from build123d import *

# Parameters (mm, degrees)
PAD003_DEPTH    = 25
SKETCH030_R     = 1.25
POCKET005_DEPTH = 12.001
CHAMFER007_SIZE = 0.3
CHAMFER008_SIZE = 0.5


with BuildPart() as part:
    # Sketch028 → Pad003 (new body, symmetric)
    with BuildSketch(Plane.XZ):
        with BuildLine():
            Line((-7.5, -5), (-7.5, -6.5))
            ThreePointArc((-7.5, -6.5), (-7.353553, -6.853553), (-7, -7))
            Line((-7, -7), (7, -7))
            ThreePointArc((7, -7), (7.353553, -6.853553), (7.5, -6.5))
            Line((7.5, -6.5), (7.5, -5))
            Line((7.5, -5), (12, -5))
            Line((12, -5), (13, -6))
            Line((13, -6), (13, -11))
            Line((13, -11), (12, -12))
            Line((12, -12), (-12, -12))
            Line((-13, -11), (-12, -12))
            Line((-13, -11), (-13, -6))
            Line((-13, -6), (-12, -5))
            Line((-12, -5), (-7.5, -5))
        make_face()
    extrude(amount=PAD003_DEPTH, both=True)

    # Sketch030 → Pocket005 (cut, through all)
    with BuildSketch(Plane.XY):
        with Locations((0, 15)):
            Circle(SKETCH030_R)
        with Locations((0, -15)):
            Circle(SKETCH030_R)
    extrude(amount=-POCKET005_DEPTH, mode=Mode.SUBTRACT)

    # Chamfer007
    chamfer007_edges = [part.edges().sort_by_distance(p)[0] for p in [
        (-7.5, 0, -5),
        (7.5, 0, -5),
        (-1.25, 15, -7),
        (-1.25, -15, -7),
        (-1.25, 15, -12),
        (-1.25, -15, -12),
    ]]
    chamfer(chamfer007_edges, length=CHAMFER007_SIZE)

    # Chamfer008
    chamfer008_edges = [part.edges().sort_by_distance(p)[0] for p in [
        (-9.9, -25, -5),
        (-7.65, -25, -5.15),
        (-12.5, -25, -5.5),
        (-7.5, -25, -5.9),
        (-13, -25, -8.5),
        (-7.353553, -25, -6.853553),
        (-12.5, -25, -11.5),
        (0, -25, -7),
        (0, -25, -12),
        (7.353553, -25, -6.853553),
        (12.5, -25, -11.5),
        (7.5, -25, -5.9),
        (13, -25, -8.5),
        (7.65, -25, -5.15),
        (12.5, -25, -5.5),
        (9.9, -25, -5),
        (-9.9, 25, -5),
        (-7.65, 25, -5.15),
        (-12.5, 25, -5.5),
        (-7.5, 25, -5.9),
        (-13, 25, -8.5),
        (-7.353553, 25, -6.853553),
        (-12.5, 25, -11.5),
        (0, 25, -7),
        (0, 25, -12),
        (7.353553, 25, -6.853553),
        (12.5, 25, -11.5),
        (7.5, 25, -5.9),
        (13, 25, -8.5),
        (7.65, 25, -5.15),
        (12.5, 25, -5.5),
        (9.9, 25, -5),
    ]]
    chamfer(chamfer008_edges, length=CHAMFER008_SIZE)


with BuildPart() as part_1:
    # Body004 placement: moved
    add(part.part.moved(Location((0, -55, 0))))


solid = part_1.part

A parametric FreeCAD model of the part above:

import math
import FreeCAD as App
import Part
import Sketcher


def edges_at(feature, points):
    """Names of the edges that pass closest to the given points."""
    edges = feature.Shape.Edges
    near = lambda p: min(range(len(edges)), key=lambda i: edges[i].distToShape(Part.Vertex(*p))[0])
    return sorted({f"Edge{near(p) + 1}" for p in points})

doc = App.newDocument("Part")
params = doc.addObject("Spreadsheet::Sheet", "Params")
for row, (alias, value) in enumerate([
    ("sketch1_radius", "0.500001 mm"),
    ("sketch1_width", "24 mm"),
    ("sketch1_width2", "14 mm"),
    ("sketch1_height", "5 mm"),
    ("sketch1_width3", "4.5 mm"),
    ("pad1_length", "50 mm"),
    ("sketch2_diameter", "2.5 mm"),
    ("chamfer_size", "0.3 mm"),
    ("chamfer2_size", "0.5 mm"),
], start=1):
    params.set(f"A{row}", alias)
    params.set(f"B{row}", "=" + value)
    params.setAlias(f"B{row}", alias)

body = doc.addObject("PartDesign::Body", "Body")

sketch1 = body.newObject("Sketcher::SketchObject", "Sketch")
sketch1.AttachmentSupport = (doc.getObject("XZ_Plane"), [""])
sketch1.MapMode = "FlatFace"
sketch1.addGeometry([
    Part.LineSegment(App.Vector(-7.5, -6.5, 0), App.Vector(-7.5, -5, 0)),
    Part.LineSegment(App.Vector(-7.5, -5, 0), App.Vector(-12, -5, 0)),
    Part.LineSegment(App.Vector(-12, -5, 0), App.Vector(-13, -6, 0)),
    Part.LineSegment(App.Vector(-13, -6, 0), App.Vector(-13, -11, 0)),
    Part.LineSegment(App.Vector(-13, -11, 0), App.Vector(-12, -12, 0)),
    Part.LineSegment(App.Vector(-12, -12, 0), App.Vector(12, -12, 0)),
    Part.LineSegment(App.Vector(12, -12, 0), App.Vector(13, -11, 0)),
    Part.LineSegment(App.Vector(13, -11, 0), App.Vector(13, -6, 0)),
    Part.LineSegment(App.Vector(13, -6, 0), App.Vector(12, -5, 0)),
    Part.LineSegment(App.Vector(12, -5, 0), App.Vector(7.5, -5, 0)),
    Part.LineSegment(App.Vector(7.5, -5, 0), App.Vector(7.5, -6.5, 0)),
    Part.ArcOfCircle(Part.Circle(App.Vector(7, -6.5, 0), App.Vector(0, 0, 1), 0.5), math.radians(-90), math.radians(0)),
    Part.LineSegment(App.Vector(7, -7, 0), App.Vector(-7, -7, 0)),
    Part.ArcOfCircle(Part.Circle(App.Vector(-7, -6.5, 0), App.Vector(0, 0, 1), 0.5), math.radians(-180), math.radians(-90)),
], False)
sketch1.addConstraint([
    Sketcher.Constraint("Coincident", 0, 2, 1, 1),
    Sketcher.Constraint("Coincident", 1, 2, 2, 1),
    Sketcher.Constraint("Coincident", 2, 2, 3, 1),
    Sketcher.Constraint("Coincident", 3, 2, 4, 1),
    Sketcher.Constraint("Coincident", 4, 2, 5, 1),
    Sketcher.Constraint("Coincident", 5, 2, 6, 1),
    Sketcher.Constraint("Coincident", 6, 2, 7, 1),
    Sketcher.Constraint("Coincident", 7, 2, 8, 1),
    Sketcher.Constraint("Coincident", 8, 2, 9, 1),
    Sketcher.Constraint("Coincident", 9, 2, 10, 1),
    Sketcher.Constraint("Coincident", 10, 2, 11, 2),
    Sketcher.Constraint("Coincident", 11, 1, 12, 1),
    Sketcher.Constraint("Coincident", 12, 2, 13, 2),
    Sketcher.Constraint("Coincident", 13, 1, 0, 1),
    Sketcher.Constraint("Vertical", 0),
    Sketcher.Constraint("Horizontal", 1),
    Sketcher.Constraint("Vertical", 3),
    Sketcher.Constraint("Horizontal", 5),
    Sketcher.Constraint("Vertical", 7),
    Sketcher.Constraint("Horizontal", 9),
    Sketcher.Constraint("Vertical", 10),
    Sketcher.Constraint("Horizontal", 12),
    Sketcher.Constraint("Equal", 11, 13),
    Sketcher.Constraint("Symmetric", 3, 2, 6, 2, -2),
    Sketcher.Constraint("Symmetric", 1, 2, 8, 2, -2),
    Sketcher.Constraint("Symmetric", 10, 2, 13, 1, -2),
    Sketcher.Constraint("Perpendicular", 2, 4),
    Sketcher.Constraint("Perpendicular", 4, 6),
    Sketcher.Constraint("Perpendicular", 6, 8),
    Sketcher.Constraint("Horizontal", 2, 2, 7, 2),
    Sketcher.Constraint("Horizontal", 13, 3, 10, 2),
    Sketcher.Constraint("Vertical", 1, 2, 4, 2),
    Sketcher.Constraint("Vertical", 13, 3, 12, 2),
    Sketcher.Constraint("Radius", 11, 0.500001),
    Sketcher.Constraint("DistanceX", 5, 1, 5, 2, 24.0),
    Sketcher.Constraint("DistanceX", 12, 2, 12, 1, 14.0),
    Sketcher.Constraint("DistanceY", 3, 2, 3, 1, 5.0),
    Sketcher.Constraint("DistanceX", 1, 2, 1, 1, 4.5),
    Sketcher.Constraint("DistanceY", 0, 1, 0, 2, 1.5),
    Sketcher.Constraint("DistanceY", 0, 2, -1, 1, 5.0),
    Sketcher.Constraint("DistanceX", 2, 2, -1, 1, 13.0),
])
sketch1.setExpression("Constraints[33]", "Params.sketch1_radius")
sketch1.setExpression("Constraints[34]", "Params.sketch1_width")
sketch1.setExpression("Constraints[35]", "Params.sketch1_width2")
sketch1.setExpression("Constraints[36]", "Params.sketch1_height")
sketch1.setExpression("Constraints[37]", "Params.sketch1_width3")
pad1 = body.newObject("PartDesign::Pad", "Pad")
pad1.Profile = sketch1
pad1.setExpression("Length", "Params.pad1_length")
pad1.Midplane = True

sketch2 = body.newObject("Sketcher::SketchObject", "Sketch001")
sketch2.AttachmentSupport = (doc.getObject("XY_Plane"), [""])
sketch2.MapMode = "FlatFace"
sketch2.addGeometry([
    Part.Circle(App.Vector(0, 15, 0), App.Vector(0, 0, 1), 1.2),
    Part.Circle(App.Vector(0, -15, 0), App.Vector(0, 0, 1), 1.2),
], False)
sketch2.addConstraint([
    Sketcher.Constraint("Equal", 0, 1),
    Sketcher.Constraint("Symmetric", 0, 3, 1, 3, -1, 1),
    Sketcher.Constraint("PointOnObject", 0, 3, -2),
    Sketcher.Constraint("Diameter", 0, 2.5),
    Sketcher.Constraint("DistanceY", -1, 1, 0, 3, 15.0),
])
sketch2.setExpression("Constraints[3]", "Params.sketch2_diameter")
pocket1 = body.newObject("PartDesign::Pocket", "Pocket")
pocket1.Profile = sketch2
pocket1.Type = "ThroughAll"
doc.recompute()

chamfer = body.newObject("PartDesign::Chamfer", "Chamfer")
chamfer.Base = (pocket1, edges_at(pocket1, [
    (-7.5, 0, -5),
    (7.5, 0, -5),
    (-1.25, 15, -7),
    (-1.25, -15, -7),
    (-1.25, 15, -12),
    (-1.25, -15, -12),
]))
chamfer.setExpression("Size", "Params.chamfer_size")
doc.recompute()

chamfer2 = body.newObject("PartDesign::Chamfer", "Chamfer001")
chamfer2.Base = (chamfer, edges_at(chamfer, [
    (-9.9, -25, -5),
    (-7.65, -25, -5.15),
    (-12.5, -25, -5.5),
    (-7.5, -25, -5.9),
    (-13, -25, -8.5),
    (-7.354, -25, -6.854),
    (-12.5, -25, -11.5),
    (0, -25, -7),
    (0, -25, -12),
    (7.354, -25, -6.854),
    (12.5, -25, -11.5),
    (7.5, -25, -5.9),
    (13, -25, -8.5),
    (7.65, -25, -5.15),
    (12.5, -25, -5.5),
    (9.9, -25, -5),
    (-9.9, 25, -5),
    (-7.65, 25, -5.15),
    (-12.5, 25, -5.5),
    (-7.5, 25, -5.9),
    (-13, 25, -8.5),
    (-7.354, 25, -6.854),
    (-12.5, 25, -11.5),
    (0, 25, -7),
    (0, 25, -12),
    (7.354, 25, -6.854),
    (12.5, 25, -11.5),
    (7.5, 25, -5.9),
    (13, 25, -8.5),
    (7.65, 25, -5.15),
    (12.5, 25, -5.5),
    (9.9, 25, -5),
]))
chamfer2.setExpression("Size", "Params.chamfer2_size")
body2 = doc.addObject("PartDesign::Body", "Body001")
doc.recompute()

body.Placement = App.Placement(App.Vector(0, -55, 0), App.Rotation(App.Vector(0, 0, 1), 0))
boolean = body2.newObject("PartDesign::Boolean", "Boolean")
boolean.Type = "Fuse"
boolean.addObjects([body])

doc.recompute()
